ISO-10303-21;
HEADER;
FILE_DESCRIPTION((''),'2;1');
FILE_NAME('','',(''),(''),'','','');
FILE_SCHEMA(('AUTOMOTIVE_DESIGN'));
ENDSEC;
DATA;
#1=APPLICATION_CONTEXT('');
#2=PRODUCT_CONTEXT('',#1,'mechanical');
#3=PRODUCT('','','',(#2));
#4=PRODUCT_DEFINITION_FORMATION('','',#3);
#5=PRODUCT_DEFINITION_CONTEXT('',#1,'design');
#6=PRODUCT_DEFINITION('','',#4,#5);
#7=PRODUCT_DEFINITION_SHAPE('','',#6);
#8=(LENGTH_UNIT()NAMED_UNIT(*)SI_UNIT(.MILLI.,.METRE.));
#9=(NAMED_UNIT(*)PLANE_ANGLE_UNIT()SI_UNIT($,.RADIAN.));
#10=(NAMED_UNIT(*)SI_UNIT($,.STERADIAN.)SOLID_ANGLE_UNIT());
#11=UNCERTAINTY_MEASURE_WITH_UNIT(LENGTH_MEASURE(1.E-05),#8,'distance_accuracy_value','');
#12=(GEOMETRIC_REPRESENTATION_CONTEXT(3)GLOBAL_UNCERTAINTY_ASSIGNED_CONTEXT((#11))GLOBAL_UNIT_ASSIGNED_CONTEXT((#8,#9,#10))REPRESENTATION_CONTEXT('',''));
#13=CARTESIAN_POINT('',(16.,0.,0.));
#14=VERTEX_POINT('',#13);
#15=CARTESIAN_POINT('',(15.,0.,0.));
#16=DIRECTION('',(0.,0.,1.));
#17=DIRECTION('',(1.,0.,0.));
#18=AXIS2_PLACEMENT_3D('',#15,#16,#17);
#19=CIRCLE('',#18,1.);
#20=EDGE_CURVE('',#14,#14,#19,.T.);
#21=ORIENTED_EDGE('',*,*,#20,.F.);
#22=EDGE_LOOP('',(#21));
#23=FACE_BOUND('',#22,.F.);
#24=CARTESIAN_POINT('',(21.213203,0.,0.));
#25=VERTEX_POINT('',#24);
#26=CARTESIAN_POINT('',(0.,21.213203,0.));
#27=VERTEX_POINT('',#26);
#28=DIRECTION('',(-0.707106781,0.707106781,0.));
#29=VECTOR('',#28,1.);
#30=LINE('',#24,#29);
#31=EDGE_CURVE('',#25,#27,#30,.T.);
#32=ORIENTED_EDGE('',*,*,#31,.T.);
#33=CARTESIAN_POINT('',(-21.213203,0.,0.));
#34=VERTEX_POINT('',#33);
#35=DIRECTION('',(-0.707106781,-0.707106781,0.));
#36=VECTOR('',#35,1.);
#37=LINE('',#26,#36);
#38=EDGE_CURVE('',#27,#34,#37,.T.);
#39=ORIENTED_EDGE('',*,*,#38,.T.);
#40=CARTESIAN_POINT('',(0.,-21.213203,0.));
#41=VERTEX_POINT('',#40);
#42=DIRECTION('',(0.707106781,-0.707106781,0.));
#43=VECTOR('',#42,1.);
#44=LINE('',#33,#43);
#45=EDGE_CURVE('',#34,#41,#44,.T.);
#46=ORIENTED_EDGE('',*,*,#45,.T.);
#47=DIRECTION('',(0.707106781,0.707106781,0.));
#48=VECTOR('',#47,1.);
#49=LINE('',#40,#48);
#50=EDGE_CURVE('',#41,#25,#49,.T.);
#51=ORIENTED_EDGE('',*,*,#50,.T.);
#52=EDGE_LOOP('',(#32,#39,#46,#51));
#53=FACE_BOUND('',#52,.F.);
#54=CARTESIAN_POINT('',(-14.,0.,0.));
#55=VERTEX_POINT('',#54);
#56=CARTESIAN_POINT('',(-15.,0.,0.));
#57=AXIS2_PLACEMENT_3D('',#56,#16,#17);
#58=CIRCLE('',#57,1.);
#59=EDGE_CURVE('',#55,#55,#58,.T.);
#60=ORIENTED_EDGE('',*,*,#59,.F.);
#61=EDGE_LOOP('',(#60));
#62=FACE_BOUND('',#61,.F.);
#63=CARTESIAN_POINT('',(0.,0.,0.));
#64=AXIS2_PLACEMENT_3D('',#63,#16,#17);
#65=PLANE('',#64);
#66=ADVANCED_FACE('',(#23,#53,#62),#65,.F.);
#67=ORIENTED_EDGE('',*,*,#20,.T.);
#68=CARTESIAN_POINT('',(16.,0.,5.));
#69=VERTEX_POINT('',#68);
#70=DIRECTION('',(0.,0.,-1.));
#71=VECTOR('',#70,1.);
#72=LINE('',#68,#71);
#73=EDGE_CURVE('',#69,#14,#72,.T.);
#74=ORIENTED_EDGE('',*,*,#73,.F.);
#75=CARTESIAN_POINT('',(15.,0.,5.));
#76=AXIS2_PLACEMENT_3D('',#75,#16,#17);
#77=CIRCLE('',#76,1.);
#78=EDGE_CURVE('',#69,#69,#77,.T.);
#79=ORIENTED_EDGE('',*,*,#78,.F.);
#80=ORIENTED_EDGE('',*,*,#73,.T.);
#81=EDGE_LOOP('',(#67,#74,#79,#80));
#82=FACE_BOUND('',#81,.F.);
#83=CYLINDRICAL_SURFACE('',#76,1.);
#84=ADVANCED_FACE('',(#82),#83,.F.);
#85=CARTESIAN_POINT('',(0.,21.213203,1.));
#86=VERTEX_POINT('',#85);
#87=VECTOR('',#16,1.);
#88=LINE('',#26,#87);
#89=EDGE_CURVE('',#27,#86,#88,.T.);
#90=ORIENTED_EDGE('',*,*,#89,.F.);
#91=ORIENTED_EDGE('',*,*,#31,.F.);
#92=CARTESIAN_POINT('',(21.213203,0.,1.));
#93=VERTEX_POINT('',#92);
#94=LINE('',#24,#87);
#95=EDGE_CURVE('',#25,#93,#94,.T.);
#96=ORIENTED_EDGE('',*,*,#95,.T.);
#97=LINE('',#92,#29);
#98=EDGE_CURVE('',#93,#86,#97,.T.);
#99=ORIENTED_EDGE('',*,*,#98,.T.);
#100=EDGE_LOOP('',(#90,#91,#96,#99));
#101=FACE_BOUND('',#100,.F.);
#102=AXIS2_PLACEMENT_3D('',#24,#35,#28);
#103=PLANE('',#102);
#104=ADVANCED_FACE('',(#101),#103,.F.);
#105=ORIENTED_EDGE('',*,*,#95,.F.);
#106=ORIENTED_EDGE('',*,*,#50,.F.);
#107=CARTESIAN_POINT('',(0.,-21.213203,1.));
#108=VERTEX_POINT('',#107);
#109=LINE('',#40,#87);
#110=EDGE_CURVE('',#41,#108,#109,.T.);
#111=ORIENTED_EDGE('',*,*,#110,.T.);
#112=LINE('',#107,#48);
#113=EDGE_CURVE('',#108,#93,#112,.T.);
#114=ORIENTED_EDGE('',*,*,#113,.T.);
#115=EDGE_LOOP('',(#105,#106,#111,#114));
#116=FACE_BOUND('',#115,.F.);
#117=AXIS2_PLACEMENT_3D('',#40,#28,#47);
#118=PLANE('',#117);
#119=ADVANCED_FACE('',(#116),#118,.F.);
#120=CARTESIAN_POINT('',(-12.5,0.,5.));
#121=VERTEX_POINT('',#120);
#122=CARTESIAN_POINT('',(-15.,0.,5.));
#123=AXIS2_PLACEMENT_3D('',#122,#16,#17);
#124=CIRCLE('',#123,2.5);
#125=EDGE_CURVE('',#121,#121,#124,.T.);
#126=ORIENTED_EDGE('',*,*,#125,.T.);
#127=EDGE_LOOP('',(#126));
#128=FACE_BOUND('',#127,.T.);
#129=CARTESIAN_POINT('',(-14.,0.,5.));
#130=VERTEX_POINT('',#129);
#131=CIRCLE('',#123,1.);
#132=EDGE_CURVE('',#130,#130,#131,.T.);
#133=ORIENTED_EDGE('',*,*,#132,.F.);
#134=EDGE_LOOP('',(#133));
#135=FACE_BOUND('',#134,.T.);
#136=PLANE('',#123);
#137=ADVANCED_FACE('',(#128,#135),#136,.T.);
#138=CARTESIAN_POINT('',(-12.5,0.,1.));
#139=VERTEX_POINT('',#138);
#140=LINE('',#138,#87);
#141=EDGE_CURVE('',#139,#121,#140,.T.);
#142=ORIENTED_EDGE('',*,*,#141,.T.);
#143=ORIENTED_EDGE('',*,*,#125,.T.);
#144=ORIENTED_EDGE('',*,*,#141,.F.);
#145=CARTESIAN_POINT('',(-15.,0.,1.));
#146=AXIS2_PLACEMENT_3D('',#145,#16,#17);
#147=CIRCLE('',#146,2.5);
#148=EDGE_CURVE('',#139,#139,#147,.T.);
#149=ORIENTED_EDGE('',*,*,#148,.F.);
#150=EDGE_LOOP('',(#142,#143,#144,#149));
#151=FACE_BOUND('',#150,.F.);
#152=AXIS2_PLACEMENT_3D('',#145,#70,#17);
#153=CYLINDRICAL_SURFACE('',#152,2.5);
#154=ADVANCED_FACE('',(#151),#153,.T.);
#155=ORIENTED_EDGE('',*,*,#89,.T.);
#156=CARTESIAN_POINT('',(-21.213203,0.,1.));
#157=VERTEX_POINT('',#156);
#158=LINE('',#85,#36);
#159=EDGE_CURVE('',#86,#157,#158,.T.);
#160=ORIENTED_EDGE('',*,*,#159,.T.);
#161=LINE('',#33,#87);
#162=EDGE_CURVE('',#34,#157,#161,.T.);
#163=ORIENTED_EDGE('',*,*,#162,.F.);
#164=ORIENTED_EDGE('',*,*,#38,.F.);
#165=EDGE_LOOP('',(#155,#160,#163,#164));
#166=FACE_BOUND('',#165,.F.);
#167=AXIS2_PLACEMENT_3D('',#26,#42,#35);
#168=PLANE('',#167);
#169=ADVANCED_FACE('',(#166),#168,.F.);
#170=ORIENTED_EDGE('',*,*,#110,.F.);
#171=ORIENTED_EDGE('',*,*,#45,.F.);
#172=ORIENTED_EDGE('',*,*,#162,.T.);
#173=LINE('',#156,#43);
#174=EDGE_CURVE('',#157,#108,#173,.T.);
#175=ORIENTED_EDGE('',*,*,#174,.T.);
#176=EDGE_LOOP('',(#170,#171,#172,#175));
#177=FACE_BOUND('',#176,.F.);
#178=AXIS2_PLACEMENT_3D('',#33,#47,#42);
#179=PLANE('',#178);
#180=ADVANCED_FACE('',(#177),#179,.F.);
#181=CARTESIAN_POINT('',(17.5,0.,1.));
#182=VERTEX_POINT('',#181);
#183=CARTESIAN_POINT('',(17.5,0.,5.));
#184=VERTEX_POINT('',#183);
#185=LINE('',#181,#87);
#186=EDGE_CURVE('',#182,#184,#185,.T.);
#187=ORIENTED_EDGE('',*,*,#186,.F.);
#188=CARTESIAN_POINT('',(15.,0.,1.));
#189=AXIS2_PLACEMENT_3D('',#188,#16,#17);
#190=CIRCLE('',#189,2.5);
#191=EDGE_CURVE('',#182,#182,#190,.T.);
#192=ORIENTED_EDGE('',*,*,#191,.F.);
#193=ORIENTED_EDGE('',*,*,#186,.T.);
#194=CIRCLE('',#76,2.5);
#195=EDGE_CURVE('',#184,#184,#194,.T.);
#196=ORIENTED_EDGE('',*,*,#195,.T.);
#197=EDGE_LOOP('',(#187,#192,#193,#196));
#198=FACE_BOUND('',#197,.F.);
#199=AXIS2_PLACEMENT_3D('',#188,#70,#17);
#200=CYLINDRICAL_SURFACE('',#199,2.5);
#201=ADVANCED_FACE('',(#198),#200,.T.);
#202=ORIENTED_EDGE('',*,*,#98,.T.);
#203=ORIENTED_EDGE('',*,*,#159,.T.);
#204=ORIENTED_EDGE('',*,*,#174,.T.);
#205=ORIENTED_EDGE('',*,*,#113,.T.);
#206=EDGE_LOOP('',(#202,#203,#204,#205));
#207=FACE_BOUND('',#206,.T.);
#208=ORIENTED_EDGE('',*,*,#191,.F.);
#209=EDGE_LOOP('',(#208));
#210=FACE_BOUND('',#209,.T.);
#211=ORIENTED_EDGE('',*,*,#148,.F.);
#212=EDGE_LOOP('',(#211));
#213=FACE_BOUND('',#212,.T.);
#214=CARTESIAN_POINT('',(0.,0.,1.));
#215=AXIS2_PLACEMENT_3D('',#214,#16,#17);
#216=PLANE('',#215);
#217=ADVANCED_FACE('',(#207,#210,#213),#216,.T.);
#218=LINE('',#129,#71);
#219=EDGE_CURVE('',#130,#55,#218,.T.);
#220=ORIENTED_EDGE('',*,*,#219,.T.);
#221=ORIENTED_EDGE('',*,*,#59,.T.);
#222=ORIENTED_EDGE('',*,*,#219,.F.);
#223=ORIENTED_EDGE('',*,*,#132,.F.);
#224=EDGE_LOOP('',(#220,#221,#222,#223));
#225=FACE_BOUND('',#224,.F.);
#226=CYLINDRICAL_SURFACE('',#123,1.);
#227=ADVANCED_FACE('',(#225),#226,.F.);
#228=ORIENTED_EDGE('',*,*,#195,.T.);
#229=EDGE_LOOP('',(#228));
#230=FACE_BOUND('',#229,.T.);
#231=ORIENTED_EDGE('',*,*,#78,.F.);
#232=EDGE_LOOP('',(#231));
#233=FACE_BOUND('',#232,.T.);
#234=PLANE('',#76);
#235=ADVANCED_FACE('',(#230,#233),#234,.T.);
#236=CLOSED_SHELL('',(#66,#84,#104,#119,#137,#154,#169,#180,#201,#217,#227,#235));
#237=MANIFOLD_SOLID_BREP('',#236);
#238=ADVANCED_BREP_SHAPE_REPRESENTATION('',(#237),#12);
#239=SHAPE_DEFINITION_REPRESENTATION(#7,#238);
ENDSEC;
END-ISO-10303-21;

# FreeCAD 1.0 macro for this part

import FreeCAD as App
import Part
import Sketcher
from FreeCAD import Vector

doc = App.newDocument("Part")
body = doc.addObject("PartDesign::Body", "Body")

# Sketch on XY plane
sketch1 = doc.addObject("Sketcher::SketchObject", "Sketch")
body.addObject(sketch1)
sketch1.AttachmentSupport = (doc.XY_Plane, [""])
sketch1.MapMode = "FlatFace"
sketch1.addGeometry(Part.LineSegment(Vector(21.213203, 0, 0), Vector(0, 21.213203, 0)), False)
sketch1.addGeometry(Part.LineSegment(Vector(0, 21.213203, 0), Vector(-21.213203, 0, 0)), False)
sketch1.addGeometry(Part.LineSegment(Vector(-21.213203, 0, 0), Vector(0, -21.213203, 0)), False)
sketch1.addGeometry(Part.LineSegment(Vector(0, -21.213203, 0), Vector(21.213203, 0, 0)), False)
sketch1.addConstraint(Sketcher.Constraint("Coincident", 0, 2, 1, 1))
sketch1.addConstraint(Sketcher.Constraint("Coincident", 1, 2, 2, 1))
sketch1.addConstraint(Sketcher.Constraint("Coincident", 2, 2, 3, 1))
sketch1.addConstraint(Sketcher.Constraint("Coincident", 3, 2, 0, 1))
sketch1.addConstraint(Sketcher.Constraint("Symmetric", 0, 2, 2, 2, -1, 1))
sketch1.addConstraint(Sketcher.Constraint("Symmetric", 1, 2, 3, 2, -1, 1))
sketch1.addConstraint(Sketcher.Constraint("PointOnObject", 0, 2, -2))
sketch1.addConstraint(Sketcher.Constraint("PointOnObject", 1, 2, -1))
sketch1.addConstraint(Sketcher.Constraint("Perpendicular", 0, 1))
sketch1.addConstraint(Sketcher.Constraint("Distance", 0, 29.999999))
pad1 = doc.addObject("PartDesign::Pad", "Pad")
body.addObject(pad1)
pad1.Profile = sketch1
pad1.Length = 1

# Sketch on XY plane
sketch2 = doc.addObject("Sketcher::SketchObject", "Sketch001")
body.addObject(sketch2)
sketch2.AttachmentSupport = (doc.XY_Plane, [""])
sketch2.MapMode = "FlatFace"
sketch2.AttachmentOffset = App.Placement(Vector(0, 0, 1), App.Rotation())
sketch2.addGeometry(Part.Circle(Vector(-15, 0, 0), Vector(0, 0, 1), 2.5), False)
sketch2.addGeometry(Part.Circle(Vector(15, 0, 0), Vector(0, 0, 1), 2.5), False)
sketch2.addConstraint(Sketcher.Constraint("Equal", 0, 1))
sketch2.addConstraint(Sketcher.Constraint("Symmetric", 0, 3, 1, 3, -1, 1))
sketch2.addConstraint(Sketcher.Constraint("PointOnObject", 0, 3, -1))
sketch2.addConstraint(Sketcher.Constraint("Diameter", 0, 5.0))
sketch2.addConstraint(Sketcher.Constraint("DistanceX", 0, 3, -1, 1, 15.0))
pad2 = doc.addObject("PartDesign::Pad", "Pad001")
body.addObject(pad2)
pad2.Profile = sketch2
pad2.Length = 4

# Sketch on XY plane
sketch3 = doc.addObject("Sketcher::SketchObject", "Sketch002")
body.addObject(sketch3)
sketch3.AttachmentSupport = (doc.XY_Plane, [""])
sketch3.MapMode = "FlatFace"
sketch3.AttachmentOffset = App.Placement(Vector(0, 0, 5), App.Rotation())
sketch3.addGeometry(Part.Circle(Vector(-15, 0, 0), Vector(0, 0, 1), 1), False)
sketch3.addGeometry(Part.Circle(Vector(15, 0, 0), Vector(0, 0, 1), 1), False)
sketch3.addConstraint(Sketcher.Constraint("Equal", 0, 1))
sketch3.addConstraint(Sketcher.Constraint("Symmetric", 0, 3, 1, 3, -1, 1))
sketch3.addConstraint(Sketcher.Constraint("PointOnObject", 0, 3, -1))
sketch3.addConstraint(Sketcher.Constraint("Diameter", 0, 2.0))
sketch3.addConstraint(Sketcher.Constraint("DistanceX", 0, 3, -1, 1, 15.0))
pocket1 = doc.addObject("PartDesign::Pocket", "Pocket")
body.addObject(pocket1)
pocket1.Profile = sketch3
pocket1.Length = 25

doc.recompute()
